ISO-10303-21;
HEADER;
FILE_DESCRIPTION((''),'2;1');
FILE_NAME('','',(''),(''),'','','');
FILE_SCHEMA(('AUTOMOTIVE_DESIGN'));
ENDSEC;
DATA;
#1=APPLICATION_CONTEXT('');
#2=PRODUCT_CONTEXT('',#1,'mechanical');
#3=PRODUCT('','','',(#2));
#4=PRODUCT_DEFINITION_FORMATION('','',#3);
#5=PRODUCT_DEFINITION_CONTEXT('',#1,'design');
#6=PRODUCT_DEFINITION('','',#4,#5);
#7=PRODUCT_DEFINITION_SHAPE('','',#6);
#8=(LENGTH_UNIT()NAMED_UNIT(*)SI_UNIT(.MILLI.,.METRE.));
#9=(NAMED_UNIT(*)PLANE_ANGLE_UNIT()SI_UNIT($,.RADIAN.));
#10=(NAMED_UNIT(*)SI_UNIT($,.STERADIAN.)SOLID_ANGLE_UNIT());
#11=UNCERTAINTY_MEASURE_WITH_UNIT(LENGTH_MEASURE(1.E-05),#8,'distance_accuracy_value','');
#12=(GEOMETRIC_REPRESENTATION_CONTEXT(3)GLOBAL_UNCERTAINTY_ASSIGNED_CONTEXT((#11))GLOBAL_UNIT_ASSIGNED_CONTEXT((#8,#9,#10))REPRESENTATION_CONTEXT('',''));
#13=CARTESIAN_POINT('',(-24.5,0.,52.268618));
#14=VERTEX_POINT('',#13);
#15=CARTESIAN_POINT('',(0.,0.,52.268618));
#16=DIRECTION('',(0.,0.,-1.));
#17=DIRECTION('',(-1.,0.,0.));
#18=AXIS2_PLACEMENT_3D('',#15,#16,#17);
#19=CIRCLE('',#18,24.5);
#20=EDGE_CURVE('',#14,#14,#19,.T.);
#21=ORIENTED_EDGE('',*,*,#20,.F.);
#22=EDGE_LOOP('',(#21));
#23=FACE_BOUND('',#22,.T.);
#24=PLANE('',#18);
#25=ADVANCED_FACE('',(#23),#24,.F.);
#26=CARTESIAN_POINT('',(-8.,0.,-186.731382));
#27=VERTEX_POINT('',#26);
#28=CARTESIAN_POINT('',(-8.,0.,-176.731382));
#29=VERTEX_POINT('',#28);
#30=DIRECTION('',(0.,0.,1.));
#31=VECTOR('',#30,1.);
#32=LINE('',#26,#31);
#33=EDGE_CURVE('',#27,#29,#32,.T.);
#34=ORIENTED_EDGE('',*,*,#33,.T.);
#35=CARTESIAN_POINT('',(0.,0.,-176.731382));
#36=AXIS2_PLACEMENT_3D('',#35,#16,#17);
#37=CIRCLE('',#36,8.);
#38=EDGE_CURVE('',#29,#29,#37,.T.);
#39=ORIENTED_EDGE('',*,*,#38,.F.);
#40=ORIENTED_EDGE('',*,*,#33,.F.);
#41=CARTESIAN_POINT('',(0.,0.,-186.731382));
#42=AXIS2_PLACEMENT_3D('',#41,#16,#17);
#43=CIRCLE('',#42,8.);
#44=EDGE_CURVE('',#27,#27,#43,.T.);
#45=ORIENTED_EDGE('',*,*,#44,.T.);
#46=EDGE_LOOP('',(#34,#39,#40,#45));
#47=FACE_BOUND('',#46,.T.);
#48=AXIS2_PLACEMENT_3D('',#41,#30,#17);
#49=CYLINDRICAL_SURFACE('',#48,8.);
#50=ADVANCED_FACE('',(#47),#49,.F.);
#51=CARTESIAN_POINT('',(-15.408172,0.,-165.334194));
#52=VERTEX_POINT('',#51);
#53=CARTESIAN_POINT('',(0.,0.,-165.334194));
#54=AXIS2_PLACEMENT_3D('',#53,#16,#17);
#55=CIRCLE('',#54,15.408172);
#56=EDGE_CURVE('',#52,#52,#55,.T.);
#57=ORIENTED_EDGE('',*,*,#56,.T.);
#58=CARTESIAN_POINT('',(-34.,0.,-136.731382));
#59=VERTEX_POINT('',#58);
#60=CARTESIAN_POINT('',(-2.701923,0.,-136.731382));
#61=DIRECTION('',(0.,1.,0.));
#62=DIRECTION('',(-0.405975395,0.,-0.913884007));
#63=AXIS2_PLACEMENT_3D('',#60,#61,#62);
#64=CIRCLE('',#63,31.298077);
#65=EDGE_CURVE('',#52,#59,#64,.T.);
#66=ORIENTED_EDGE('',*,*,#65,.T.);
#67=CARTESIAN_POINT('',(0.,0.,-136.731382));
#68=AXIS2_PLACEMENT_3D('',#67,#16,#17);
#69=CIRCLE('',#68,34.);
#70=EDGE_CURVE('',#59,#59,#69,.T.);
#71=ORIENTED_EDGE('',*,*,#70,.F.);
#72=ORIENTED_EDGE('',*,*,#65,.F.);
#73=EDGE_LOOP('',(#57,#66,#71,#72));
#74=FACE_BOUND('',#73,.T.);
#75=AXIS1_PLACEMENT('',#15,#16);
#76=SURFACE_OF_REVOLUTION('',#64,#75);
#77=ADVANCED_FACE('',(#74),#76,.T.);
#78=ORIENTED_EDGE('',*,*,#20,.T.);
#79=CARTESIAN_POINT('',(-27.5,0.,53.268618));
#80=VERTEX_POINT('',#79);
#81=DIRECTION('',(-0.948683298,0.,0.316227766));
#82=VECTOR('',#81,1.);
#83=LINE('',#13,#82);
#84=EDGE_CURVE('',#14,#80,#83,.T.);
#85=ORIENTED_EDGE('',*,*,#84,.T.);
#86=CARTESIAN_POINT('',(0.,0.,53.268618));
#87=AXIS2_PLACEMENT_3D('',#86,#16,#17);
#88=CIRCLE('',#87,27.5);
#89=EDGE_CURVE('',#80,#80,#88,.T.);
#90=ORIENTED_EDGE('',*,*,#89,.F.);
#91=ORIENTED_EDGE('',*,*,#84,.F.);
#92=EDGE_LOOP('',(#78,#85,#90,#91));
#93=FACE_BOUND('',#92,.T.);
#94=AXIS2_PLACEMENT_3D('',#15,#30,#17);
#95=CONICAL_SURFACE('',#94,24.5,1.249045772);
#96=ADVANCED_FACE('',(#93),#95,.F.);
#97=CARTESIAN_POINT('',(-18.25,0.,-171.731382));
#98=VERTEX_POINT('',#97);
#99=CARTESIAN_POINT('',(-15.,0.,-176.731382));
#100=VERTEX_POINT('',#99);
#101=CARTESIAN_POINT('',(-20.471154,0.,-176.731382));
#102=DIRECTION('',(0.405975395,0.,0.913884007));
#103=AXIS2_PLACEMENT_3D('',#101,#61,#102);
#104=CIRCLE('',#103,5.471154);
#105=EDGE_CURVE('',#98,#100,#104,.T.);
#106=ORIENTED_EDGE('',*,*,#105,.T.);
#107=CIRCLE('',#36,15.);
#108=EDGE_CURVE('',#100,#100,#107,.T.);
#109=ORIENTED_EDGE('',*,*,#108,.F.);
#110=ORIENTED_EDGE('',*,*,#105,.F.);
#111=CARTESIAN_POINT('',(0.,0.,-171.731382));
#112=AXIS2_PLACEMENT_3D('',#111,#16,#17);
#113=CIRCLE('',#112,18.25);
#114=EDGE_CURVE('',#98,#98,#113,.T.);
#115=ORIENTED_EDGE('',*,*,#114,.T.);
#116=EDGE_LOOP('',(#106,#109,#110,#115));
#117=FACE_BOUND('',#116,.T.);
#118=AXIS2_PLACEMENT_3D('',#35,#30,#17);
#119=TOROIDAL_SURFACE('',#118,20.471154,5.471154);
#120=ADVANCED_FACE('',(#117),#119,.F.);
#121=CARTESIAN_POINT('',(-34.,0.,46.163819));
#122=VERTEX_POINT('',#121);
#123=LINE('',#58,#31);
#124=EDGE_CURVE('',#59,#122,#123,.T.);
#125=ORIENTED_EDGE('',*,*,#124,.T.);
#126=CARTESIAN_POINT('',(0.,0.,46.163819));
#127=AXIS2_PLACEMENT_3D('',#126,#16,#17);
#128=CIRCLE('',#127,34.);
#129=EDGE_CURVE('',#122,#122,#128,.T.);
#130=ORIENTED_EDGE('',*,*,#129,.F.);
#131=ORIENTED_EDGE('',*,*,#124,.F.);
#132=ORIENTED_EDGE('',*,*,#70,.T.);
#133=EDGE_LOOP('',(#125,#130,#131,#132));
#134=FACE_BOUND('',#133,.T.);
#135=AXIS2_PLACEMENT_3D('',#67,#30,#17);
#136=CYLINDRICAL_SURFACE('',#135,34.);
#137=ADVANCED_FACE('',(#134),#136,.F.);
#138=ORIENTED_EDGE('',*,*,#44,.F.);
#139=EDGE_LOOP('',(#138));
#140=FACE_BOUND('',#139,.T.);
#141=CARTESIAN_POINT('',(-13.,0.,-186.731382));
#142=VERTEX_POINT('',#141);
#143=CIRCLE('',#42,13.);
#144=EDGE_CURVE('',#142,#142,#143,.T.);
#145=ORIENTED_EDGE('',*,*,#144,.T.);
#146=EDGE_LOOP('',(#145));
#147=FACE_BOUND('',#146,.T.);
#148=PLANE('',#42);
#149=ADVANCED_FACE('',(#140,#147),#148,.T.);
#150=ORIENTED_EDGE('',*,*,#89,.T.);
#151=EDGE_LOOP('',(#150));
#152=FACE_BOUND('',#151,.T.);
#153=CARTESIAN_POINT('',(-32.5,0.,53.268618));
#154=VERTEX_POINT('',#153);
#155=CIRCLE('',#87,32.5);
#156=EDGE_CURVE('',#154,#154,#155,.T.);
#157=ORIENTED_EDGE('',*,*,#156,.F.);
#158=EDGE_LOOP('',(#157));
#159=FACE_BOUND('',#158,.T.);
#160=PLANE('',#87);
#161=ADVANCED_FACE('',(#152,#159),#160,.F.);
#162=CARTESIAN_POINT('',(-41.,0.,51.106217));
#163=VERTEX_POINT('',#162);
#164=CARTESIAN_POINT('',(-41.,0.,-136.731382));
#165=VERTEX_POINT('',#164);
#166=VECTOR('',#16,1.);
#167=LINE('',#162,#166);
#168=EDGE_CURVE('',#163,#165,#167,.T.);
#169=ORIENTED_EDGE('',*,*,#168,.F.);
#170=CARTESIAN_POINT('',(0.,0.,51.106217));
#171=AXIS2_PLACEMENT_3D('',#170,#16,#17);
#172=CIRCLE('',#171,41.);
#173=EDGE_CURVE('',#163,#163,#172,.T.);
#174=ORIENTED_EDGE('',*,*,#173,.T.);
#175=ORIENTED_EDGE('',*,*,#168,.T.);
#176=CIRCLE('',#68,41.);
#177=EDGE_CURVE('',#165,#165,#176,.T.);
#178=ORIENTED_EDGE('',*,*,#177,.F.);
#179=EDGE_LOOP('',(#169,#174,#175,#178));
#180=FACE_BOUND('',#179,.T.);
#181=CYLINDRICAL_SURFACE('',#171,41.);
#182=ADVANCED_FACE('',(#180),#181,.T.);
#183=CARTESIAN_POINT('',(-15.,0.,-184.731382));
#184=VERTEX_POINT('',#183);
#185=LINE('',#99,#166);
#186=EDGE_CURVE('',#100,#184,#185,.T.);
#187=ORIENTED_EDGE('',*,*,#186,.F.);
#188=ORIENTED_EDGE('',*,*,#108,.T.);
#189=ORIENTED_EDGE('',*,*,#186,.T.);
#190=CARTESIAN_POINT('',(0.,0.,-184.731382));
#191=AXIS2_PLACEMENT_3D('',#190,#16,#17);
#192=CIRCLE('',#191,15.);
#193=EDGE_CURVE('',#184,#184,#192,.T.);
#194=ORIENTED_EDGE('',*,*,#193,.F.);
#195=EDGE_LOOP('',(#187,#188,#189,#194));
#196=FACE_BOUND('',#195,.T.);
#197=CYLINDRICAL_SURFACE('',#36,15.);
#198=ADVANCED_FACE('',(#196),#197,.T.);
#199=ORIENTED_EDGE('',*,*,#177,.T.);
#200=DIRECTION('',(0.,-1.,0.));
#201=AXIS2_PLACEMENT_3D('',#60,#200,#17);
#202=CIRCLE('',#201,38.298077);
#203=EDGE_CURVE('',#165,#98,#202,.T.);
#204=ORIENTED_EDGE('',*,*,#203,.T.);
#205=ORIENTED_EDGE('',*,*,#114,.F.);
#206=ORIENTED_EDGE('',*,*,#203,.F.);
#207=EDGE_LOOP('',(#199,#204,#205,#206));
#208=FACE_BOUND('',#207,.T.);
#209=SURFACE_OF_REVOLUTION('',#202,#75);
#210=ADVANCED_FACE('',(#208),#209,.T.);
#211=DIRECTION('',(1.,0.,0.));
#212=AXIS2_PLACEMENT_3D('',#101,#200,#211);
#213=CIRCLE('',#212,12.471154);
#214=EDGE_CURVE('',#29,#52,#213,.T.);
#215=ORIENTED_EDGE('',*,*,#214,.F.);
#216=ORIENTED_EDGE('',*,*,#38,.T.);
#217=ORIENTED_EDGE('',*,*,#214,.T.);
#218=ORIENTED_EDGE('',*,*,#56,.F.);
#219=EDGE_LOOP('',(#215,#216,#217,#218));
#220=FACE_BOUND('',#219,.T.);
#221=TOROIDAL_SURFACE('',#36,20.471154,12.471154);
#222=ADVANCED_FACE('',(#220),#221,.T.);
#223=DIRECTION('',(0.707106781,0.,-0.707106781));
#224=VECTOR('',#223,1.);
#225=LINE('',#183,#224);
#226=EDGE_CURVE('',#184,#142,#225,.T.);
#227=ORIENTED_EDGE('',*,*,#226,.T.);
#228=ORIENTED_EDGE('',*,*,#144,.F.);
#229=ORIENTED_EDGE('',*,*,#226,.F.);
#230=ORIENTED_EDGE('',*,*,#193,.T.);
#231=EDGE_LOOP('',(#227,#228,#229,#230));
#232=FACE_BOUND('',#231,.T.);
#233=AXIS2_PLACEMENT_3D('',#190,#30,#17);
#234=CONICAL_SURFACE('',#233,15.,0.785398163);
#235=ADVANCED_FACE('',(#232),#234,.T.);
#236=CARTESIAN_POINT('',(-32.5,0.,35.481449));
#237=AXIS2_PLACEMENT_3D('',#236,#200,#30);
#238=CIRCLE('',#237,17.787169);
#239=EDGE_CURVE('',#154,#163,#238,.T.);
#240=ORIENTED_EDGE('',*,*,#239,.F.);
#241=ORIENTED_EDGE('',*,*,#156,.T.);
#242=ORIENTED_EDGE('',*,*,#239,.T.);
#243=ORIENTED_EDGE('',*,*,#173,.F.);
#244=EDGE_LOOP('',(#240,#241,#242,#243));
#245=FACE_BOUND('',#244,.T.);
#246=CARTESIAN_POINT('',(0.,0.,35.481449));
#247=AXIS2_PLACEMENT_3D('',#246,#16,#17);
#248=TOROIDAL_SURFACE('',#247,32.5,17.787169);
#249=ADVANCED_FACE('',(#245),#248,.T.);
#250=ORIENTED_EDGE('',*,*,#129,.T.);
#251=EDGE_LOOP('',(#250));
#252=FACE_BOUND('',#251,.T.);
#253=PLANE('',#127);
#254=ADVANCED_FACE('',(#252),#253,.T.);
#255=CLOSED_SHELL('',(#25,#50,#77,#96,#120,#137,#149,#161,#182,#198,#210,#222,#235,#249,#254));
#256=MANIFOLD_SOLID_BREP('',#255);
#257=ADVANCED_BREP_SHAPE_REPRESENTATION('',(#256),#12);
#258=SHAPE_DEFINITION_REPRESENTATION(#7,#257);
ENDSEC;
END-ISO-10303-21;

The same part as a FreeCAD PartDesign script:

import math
import FreeCAD as App
import Part
import Sketcher
from FreeCAD import Vector
Q = App.Units.Quantity

doc = App.newDocument("Part")
params = doc.addObject("Spreadsheet::Sheet", "Params")
for row, (alias, value) in enumerate([
    ("sketch1_width", "34 mm"),
    ("sketch1_width2", "5 mm"),
    ("sketch1_height", "10 mm"),
    ("sketch1_height2", "8 mm"),
    ("sketch1_width3", "24.5 mm"),
    ("revolution_angle", "360 deg"),
], start=1):
    params.set(f"A{row}", alias)
    params.set(f"B{row}", "=" + value)
    params.setAlias(f"B{row}", alias)

body = doc.addObject("PartDesign::Body", "Body")

sketch1 = doc.addObject("Sketcher::SketchObject", "Sketch")
body.addObject(sketch1)
sketch1.AttachmentSupport = (doc.XZ_Plane, [""])
sketch1.MapMode = "FlatFace"
sketch1.addGeometry([
    Part.LineSegment(Vector(0, 46.163819, 0), Vector(-34, 46.163819, 0)),
    Part.LineSegment(Vector(-34, 46.163819, 0), Vector(-34, -136.731382, 0)),
    Part.ArcOfCircle(Part.Circle(Vector(-2.701923, -136.731382, 0), Vector(0, 0, 1), 31.298077), math.radians(180), math.radians(246.047735)),
    Part.ArcOfCircle(Part.Circle(Vector(-20.471154, -176.731382, 0), Vector(0, 0, 1), 12.471154), math.radians(0), math.radians(66.047735)),
    Part.LineSegment(Vector(-8, -176.731382, 0), Vector(-8, -186.731382, 0)),
    Part.LineSegment(Vector(-8, -186.731382, 0), Vector(-13, -186.731382, 0)),
    Part.LineSegment(Vector(-13, -186.731382, 0), Vector(-15, -184.731382, 0)),
    Part.LineSegment(Vector(-15, -184.731382, 0), Vector(-15, -176.731382, 0)),
    Part.ArcOfCircle(Part.Circle(Vector(-20.471154, -176.731382, 0), Vector(0, 0, 1), 5.471154), math.radians(0), math.radians(66.047735)),
    Part.ArcOfCircle(Part.Circle(Vector(-2.701923, -136.731382, 0), Vector(0, 0, 1), 38.298077), math.radians(180), math.radians(246.047735)),
    Part.LineSegment(Vector(-41, -136.731382, 0), Vector(-41, 51.106217, 0)),
    Part.ArcOfCircle(Part.Circle(Vector(-32.5, 35.481449, 0), Vector(0, 0, 1), 17.787169), math.radians(90), math.radians(118.546548)),
    Part.LineSegment(Vector(-32.5, 53.268618, 0), Vector(-27.5, 53.268618, 0)),
    Part.LineSegment(Vector(-27.5, 53.268618, 0), Vector(-24.5, 52.268618, 0)),
    Part.LineSegment(Vector(-24.5, 52.268618, 0), Vector(0, 52.268618, 0)),
    Part.LineSegment(Vector(0, 52.268618, 0), Vector(0, 46.163819, 0)),
], False)
sketch1.addConstraint([
    Sketcher.Constraint("Coincident", 0, 2, 1, 1),
    Sketcher.Constraint("Tangent", 1, 2, 2, 1),
    Sketcher.Constraint("Tangent", 2, 2, 3, 2),
    Sketcher.Constraint("Tangent", 3, 1, 4, 1),
    Sketcher.Constraint("Coincident", 4, 2, 5, 1),
    Sketcher.Constraint("Coincident", 5, 2, 6, 1),
    Sketcher.Constraint("Coincident", 6, 2, 7, 1),
    Sketcher.Constraint("Tangent", 7, 2, 8, 1),
    Sketcher.Constraint("Tangent", 8, 2, 9, 2),
    Sketcher.Constraint("Tangent", 9, 1, 10, 1),
    Sketcher.Constraint("Coincident", 10, 2, 11, 2),
    Sketcher.Constraint("Tangent", 11, 1, 12, 1),
    Sketcher.Constraint("Coincident", 12, 2, 13, 1),
    Sketcher.Constraint("Coincident", 13, 2, 14, 1),
    Sketcher.Constraint("Coincident", 14, 2, 15, 1),
    Sketcher.Constraint("Coincident", 15, 2, 0, 1),
    Sketcher.Constraint("Horizontal", 0),
    Sketcher.Constraint("Vertical", 1),
    Sketcher.Constraint("Vertical", 4),
    Sketcher.Constraint("Horizontal", 5),
    Sketcher.Constraint("Vertical", 7),
    Sketcher.Constraint("Vertical", 10),
    Sketcher.Constraint("Horizontal", 12),
    Sketcher.Constraint("Horizontal", 14),
    Sketcher.Constraint("Vertical", 15),
    Sketcher.Constraint("Coincident", 8, 3, 3, 3),
    Sketcher.Constraint("Coincident", 9, 3, 2, 3),
    Sketcher.Constraint("PointOnObject", 14, 2, -2),
    Sketcher.Constraint("Equal", 5, 12),
    Sketcher.Constraint("DistanceX", 0, 2, 0, 1, Q("34 mm")),
    Sketcher.Constraint("DistanceX", 5, 2, 5, 1, Q("5 mm")),
    Sketcher.Constraint("DistanceY", 4, 2, 4, 1, Q("10 mm")),
    Sketcher.Constraint("DistanceY", 7, 1, 7, 2, Q("8 mm")),
    Sketcher.Constraint("Angle", 6, Q("135 deg")),
    Sketcher.Constraint("DistanceX", 14, 1, 14, 2, Q("24.5 mm")),
    Sketcher.Constraint("DistanceX", 3, 1, -1, 1, Q("8 mm")),
    Sketcher.Constraint("DistanceY", 3, 3, 2, 3, Q("40 mm")),
    Sketcher.Constraint("DistanceY", 8, 3, 8, 2, Q("5 mm")),
    Sketcher.Constraint("DistanceY", 1, 2, 11, 1, Q("190 mm")),
    Sketcher.Constraint("DistanceX", 12, 2, 13, 2, Q("3 mm")),
    Sketcher.Constraint("DistanceY", 13, 2, 12, 2, Q("1 mm")),
    Sketcher.Constraint("Radius", 11, Q("17.787169 mm")),
    Sketcher.Constraint("DistanceY", 1, 2, 1, 1, Q("182.8952 mm")),
    Sketcher.Constraint("DistanceY", 2, 3, -1, 1, Q("136.731382 mm")),
])
sketch1.setExpression("Constraints[29]", "Params.sketch1_width")
sketch1.setExpression("Constraints[30]", "Params.sketch1_width2")
sketch1.setExpression("Constraints[31]", "Params.sketch1_height")
sketch1.setExpression("Constraints[32]", "Params.sketch1_height2")
sketch1.setExpression("Constraints[34]", "Params.sketch1_width3")
revolution = doc.addObject("PartDesign::Revolution", "Revolution")
body.addObject(revolution)
revolution.Profile = sketch1
revolution.ReferenceAxis = (sketch1, ["V_Axis"])
revolution.setExpression("Angle", "Params.revolution_angle")

doc.recompute()
